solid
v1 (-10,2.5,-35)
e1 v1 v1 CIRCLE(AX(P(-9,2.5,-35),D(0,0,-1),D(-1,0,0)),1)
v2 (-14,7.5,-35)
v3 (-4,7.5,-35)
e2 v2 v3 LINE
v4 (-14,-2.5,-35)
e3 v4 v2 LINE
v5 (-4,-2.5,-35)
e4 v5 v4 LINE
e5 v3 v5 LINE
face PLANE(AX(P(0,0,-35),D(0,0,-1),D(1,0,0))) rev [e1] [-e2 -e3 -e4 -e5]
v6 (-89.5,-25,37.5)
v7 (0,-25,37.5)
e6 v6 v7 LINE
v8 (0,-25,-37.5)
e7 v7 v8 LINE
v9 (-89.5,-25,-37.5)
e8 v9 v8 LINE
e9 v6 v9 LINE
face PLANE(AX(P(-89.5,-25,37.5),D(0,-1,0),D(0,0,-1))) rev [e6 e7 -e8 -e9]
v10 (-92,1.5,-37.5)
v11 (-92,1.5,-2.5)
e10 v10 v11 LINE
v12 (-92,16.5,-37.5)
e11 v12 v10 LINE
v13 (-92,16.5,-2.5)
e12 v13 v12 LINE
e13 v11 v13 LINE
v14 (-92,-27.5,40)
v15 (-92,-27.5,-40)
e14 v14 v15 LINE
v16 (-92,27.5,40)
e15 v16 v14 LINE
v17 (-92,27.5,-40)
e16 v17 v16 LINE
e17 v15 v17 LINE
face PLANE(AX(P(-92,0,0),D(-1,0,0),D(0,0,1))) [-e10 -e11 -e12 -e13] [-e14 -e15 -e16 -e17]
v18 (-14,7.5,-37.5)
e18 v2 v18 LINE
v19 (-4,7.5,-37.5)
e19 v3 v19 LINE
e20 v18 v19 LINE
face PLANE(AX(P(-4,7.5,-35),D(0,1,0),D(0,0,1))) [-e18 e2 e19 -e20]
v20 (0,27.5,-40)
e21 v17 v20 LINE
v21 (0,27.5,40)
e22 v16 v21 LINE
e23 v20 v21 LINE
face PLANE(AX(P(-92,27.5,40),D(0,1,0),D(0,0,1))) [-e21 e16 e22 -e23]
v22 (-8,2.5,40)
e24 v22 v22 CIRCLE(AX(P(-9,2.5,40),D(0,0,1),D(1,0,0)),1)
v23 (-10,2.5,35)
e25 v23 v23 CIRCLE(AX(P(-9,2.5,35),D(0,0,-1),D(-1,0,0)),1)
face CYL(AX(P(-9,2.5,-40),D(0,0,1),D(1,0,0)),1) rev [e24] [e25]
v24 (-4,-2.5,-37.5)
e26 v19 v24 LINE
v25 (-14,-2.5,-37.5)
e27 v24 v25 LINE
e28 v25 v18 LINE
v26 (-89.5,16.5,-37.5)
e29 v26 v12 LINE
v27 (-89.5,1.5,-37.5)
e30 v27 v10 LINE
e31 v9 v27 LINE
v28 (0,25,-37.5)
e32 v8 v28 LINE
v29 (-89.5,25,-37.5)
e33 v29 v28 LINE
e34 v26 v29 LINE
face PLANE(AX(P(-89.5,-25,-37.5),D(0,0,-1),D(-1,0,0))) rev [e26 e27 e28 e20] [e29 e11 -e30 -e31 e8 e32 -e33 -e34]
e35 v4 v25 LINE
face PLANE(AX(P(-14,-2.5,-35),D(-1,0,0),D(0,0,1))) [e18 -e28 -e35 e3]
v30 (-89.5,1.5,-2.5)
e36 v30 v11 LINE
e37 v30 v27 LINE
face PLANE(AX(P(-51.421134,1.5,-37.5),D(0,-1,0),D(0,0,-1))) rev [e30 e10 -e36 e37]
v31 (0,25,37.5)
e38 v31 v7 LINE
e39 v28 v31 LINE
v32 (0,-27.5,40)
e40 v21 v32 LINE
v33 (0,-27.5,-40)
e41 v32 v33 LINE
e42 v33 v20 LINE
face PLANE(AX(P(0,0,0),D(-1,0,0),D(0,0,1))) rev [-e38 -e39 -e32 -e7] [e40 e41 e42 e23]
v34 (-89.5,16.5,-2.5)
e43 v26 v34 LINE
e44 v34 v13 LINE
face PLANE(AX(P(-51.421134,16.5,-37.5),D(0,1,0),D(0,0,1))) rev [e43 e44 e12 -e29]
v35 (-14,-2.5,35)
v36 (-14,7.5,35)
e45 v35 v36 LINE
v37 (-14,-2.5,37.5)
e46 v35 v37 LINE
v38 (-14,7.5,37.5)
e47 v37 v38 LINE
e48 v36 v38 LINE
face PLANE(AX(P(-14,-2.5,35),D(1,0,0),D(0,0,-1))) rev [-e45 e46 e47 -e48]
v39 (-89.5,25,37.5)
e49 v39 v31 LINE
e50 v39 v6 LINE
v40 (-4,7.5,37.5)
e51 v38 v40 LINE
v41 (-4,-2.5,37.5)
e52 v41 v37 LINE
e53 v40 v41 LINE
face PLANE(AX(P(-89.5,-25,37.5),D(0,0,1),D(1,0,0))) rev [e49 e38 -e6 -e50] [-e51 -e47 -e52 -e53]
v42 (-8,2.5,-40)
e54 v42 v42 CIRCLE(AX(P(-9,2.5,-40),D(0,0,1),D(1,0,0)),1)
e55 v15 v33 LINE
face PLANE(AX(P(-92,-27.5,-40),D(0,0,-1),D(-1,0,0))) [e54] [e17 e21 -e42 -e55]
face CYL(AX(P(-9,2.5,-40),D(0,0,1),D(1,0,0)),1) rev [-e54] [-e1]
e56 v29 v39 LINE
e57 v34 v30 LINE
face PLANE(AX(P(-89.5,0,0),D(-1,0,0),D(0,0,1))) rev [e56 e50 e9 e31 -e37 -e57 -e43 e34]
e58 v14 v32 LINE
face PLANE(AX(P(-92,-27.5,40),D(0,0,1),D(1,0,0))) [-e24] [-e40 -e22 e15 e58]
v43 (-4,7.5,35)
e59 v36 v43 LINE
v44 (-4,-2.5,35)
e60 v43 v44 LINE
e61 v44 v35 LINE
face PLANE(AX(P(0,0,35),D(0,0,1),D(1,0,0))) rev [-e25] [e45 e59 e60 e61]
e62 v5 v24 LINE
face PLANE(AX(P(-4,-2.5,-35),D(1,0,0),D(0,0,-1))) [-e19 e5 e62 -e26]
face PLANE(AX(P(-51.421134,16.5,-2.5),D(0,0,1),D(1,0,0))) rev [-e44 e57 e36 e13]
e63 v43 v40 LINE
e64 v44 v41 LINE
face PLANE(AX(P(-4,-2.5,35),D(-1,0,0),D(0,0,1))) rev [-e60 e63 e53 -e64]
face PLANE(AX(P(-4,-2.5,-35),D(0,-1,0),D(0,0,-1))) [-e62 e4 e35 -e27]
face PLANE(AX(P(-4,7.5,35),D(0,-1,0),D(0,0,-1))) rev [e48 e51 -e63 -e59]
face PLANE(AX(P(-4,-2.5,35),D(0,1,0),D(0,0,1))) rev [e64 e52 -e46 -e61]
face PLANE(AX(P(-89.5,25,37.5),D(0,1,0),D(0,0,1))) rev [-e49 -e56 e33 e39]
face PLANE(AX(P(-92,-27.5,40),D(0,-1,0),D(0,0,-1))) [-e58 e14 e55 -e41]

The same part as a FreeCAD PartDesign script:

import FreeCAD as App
import Part
import Sketcher

V = App.Vector
Q = App.Units.Quantity


def add_polygon(sketch, points):
    """Adds a closed chain of lines whose ends are joined by coincident constraints."""
    first, n = sketch.GeometryCount, len(points)
    for a, b in zip(points, points[1:] + points[:1]):
        sketch.addGeometry(Part.LineSegment(App.Vector(*a, 0), App.Vector(*b, 0)), False)
    for i in range(n):
        sketch.addConstraint(Sketcher.Constraint("Coincident", first + i, 2, first + (i + 1) % n, 1))

doc = App.newDocument("Part")
body = doc.addObject("PartDesign::Body", "Body")

# Sketch on YZ plane
sketch1 = body.newObject("Sketcher::SketchObject", "Sketch")
sketch1.AttachmentSupport = (doc.getObject("YZ_Plane"), [""])
sketch1.MapMode = "FlatFace"
add_polygon(sketch1, [(27.5, 40), (-27.5, 40), (-27.5, -40), (27.5, -40)])  # lines 0-3
sketch1.addConstraint([
    Sketcher.Constraint("Horizontal", 0),
    Sketcher.Constraint("Vertical", 1),
    Sketcher.Constraint("Horizontal", 2),
    Sketcher.Constraint("Vertical", 3),
    Sketcher.Constraint("Symmetric", 0, 2, 2, 2, -1, 1),
    Sketcher.Constraint("DistanceX", 0, 2, 0, 1, Q("55 mm")),
    Sketcher.Constraint("DistanceY", 1, 2, 1, 1, Q("80 mm")),
])
pad1 = body.newObject("PartDesign::Pad", "Pad")
pad1.Profile = sketch1
pad1.Length = 92
pad1.Reversed = True

# Sketch on YZ plane
sketch2 = body.newObject("Sketcher::SketchObject", "Sketch001")
sketch2.AttachmentSupport = (doc.getObject("YZ_Plane"), [""])
sketch2.MapMode = "FlatFace"
add_polygon(sketch2, [(25, 37.5), (-25, 37.5), (-25, -37.5), (25, -37.5)])  # lines 0-3
sketch2.addConstraint([
    Sketcher.Constraint("Horizontal", 0),
    Sketcher.Constraint("Vertical", 1),
    Sketcher.Constraint("Horizontal", 2),
    Sketcher.Constraint("Vertical", 3),
    Sketcher.Constraint("Symmetric", 0, 2, 2, 2, -1, 1),
    Sketcher.Constraint("DistanceX", 0, 2, 0, 1, Q("50 mm")),
    Sketcher.Constraint("DistanceY", 1, 2, 1, 1, Q("75 mm")),
])
pocket1 = body.newObject("PartDesign::Pocket", "Pocket")
pocket1.Profile = sketch2
pocket1.Length = 89.5

# Sketch on YZ plane
sketch3 = body.newObject("Sketcher::SketchObject", "Sketch002")
sketch3.AttachmentSupport = (doc.getObject("YZ_Plane"), [""])
sketch3.MapMode = "FlatFace"
sketch3.AttachmentOffset = App.Placement(V(0, 0, -92), App.Rotation())
add_polygon(sketch3, [(16.5, -37.5), (1.5, -37.5), (1.5, -2.5), (16.5, -2.5)])  # lines 0-3
sketch3.addConstraint([
    Sketcher.Constraint("Horizontal", 0),
    Sketcher.Constraint("Vertical", 1),
    Sketcher.Constraint("Horizontal", 2),
    Sketcher.Constraint("Vertical", 3),
    Sketcher.Constraint("DistanceX", 0, 2, 0, 1, Q("15 mm")),
    Sketcher.Constraint("DistanceY", 1, 1, 1, 2, Q("35 mm")),
    Sketcher.Constraint("DistanceX", -1, 1, 0, 2, Q("1.5 mm")),
    Sketcher.Constraint("DistanceY", 0, 2, -1, 1, Q("37.5 mm")),
])
pocket2 = body.newObject("PartDesign::Pocket", "Pocket001")
pocket2.Profile = sketch3
pocket2.Length = 2.5
pocket2.Reversed = True

# Sketch on XY plane
sketch4 = body.newObject("Sketcher::SketchObject", "Sketch003")
sketch4.AttachmentSupport = (doc.getObject("XY_Plane"), [""])
sketch4.MapMode = "FlatFace"
sketch4.AttachmentOffset = App.Placement(V(0, 0, 40), App.Rotation())
sketch4.addGeometry(Part.Circle(V(-9, 2.5, 0), V(0, 0, 1), 1), False)
sketch4.addConstraint([
    Sketcher.Constraint("Diameter", 0, Q("2 mm")),
    Sketcher.Constraint("DistanceX", 0, 3, -1, 1, Q("9 mm")),
    Sketcher.Constraint("DistanceY", -1, 1, 0, 3, Q("2.5 mm")),
])
pocket3 = body.newObject("PartDesign::Pocket", "Pocket002")
pocket3.Profile = sketch4
pocket3.Type = "ThroughAll"

# Sketch on XY plane
sketch5 = body.newObject("Sketcher::SketchObject", "Sketch004")
sketch5.AttachmentSupport = (doc.getObject("XY_Plane"), [""])
sketch5.MapMode = "FlatFace"
sketch5.AttachmentOffset = App.Placement(V(0, 0, 37.5), App.Rotation())
add_polygon(sketch5, [(-4, 7.5), (-4, -2.5), (-14, -2.5), (-14, 7.5)])  # lines 0-3
sketch5.addConstraint([
    Sketcher.Constraint("Vertical", 0),
    Sketcher.Constraint("Horizontal", 1),
    Sketcher.Constraint("Vertical", 2),
    Sketcher.Constraint("Horizontal", 3),
    Sketcher.Constraint("Equal", 3, 0),
    Sketcher.Constraint("DistanceX", 1, 2, 1, 1, Q("10 mm")),
    Sketcher.Constraint("DistanceX", 0, 2, -1, 1, Q("4 mm")),
    Sketcher.Constraint("DistanceY", 0, 2, -1, 1, Q("2.5 mm")),
])
pad2 = body.newObject("PartDesign::Pad", "Pad001")
pad2.Profile = sketch5
pad2.Length = 2.5
pad2.Reversed = True

# Sketch on XY plane
sketch6 = body.newObject("Sketcher::SketchObject", "Sketch005")
sketch6.AttachmentSupport = (doc.getObject("XY_Plane"), [""])
sketch6.MapMode = "FlatFace"
sketch6.AttachmentOffset = App.Placement(V(0, 0, 35), App.Rotation())
sketch6.addGeometry(Part.Circle(V(-9, 2.5, 0), V(0, 0, 1), 1), False)
sketch6.addConstraint([
    Sketcher.Constraint("Diameter", 0, Q("2 mm")),
    Sketcher.Constraint("DistanceX", 0, 3, -1, 1, Q("9 mm")),
    Sketcher.Constraint("DistanceY", -1, 1, 0, 3, Q("2.5 mm")),
])
pocket4 = body.newObject("PartDesign::Pocket", "Pocket003")
pocket4.Profile = sketch6
pocket4.Type = "ThroughAll"
pocket4.Reversed = True
doc.recompute()

mirrored = body.newObject("PartDesign::Mirrored", "Mirrored")
mirrored.Originals = [pad2, pocket4]
mirrored.MirrorPlane = (doc.getObject("XY_Plane"), [""])
body.Tip = mirrored

doc.recompute()
